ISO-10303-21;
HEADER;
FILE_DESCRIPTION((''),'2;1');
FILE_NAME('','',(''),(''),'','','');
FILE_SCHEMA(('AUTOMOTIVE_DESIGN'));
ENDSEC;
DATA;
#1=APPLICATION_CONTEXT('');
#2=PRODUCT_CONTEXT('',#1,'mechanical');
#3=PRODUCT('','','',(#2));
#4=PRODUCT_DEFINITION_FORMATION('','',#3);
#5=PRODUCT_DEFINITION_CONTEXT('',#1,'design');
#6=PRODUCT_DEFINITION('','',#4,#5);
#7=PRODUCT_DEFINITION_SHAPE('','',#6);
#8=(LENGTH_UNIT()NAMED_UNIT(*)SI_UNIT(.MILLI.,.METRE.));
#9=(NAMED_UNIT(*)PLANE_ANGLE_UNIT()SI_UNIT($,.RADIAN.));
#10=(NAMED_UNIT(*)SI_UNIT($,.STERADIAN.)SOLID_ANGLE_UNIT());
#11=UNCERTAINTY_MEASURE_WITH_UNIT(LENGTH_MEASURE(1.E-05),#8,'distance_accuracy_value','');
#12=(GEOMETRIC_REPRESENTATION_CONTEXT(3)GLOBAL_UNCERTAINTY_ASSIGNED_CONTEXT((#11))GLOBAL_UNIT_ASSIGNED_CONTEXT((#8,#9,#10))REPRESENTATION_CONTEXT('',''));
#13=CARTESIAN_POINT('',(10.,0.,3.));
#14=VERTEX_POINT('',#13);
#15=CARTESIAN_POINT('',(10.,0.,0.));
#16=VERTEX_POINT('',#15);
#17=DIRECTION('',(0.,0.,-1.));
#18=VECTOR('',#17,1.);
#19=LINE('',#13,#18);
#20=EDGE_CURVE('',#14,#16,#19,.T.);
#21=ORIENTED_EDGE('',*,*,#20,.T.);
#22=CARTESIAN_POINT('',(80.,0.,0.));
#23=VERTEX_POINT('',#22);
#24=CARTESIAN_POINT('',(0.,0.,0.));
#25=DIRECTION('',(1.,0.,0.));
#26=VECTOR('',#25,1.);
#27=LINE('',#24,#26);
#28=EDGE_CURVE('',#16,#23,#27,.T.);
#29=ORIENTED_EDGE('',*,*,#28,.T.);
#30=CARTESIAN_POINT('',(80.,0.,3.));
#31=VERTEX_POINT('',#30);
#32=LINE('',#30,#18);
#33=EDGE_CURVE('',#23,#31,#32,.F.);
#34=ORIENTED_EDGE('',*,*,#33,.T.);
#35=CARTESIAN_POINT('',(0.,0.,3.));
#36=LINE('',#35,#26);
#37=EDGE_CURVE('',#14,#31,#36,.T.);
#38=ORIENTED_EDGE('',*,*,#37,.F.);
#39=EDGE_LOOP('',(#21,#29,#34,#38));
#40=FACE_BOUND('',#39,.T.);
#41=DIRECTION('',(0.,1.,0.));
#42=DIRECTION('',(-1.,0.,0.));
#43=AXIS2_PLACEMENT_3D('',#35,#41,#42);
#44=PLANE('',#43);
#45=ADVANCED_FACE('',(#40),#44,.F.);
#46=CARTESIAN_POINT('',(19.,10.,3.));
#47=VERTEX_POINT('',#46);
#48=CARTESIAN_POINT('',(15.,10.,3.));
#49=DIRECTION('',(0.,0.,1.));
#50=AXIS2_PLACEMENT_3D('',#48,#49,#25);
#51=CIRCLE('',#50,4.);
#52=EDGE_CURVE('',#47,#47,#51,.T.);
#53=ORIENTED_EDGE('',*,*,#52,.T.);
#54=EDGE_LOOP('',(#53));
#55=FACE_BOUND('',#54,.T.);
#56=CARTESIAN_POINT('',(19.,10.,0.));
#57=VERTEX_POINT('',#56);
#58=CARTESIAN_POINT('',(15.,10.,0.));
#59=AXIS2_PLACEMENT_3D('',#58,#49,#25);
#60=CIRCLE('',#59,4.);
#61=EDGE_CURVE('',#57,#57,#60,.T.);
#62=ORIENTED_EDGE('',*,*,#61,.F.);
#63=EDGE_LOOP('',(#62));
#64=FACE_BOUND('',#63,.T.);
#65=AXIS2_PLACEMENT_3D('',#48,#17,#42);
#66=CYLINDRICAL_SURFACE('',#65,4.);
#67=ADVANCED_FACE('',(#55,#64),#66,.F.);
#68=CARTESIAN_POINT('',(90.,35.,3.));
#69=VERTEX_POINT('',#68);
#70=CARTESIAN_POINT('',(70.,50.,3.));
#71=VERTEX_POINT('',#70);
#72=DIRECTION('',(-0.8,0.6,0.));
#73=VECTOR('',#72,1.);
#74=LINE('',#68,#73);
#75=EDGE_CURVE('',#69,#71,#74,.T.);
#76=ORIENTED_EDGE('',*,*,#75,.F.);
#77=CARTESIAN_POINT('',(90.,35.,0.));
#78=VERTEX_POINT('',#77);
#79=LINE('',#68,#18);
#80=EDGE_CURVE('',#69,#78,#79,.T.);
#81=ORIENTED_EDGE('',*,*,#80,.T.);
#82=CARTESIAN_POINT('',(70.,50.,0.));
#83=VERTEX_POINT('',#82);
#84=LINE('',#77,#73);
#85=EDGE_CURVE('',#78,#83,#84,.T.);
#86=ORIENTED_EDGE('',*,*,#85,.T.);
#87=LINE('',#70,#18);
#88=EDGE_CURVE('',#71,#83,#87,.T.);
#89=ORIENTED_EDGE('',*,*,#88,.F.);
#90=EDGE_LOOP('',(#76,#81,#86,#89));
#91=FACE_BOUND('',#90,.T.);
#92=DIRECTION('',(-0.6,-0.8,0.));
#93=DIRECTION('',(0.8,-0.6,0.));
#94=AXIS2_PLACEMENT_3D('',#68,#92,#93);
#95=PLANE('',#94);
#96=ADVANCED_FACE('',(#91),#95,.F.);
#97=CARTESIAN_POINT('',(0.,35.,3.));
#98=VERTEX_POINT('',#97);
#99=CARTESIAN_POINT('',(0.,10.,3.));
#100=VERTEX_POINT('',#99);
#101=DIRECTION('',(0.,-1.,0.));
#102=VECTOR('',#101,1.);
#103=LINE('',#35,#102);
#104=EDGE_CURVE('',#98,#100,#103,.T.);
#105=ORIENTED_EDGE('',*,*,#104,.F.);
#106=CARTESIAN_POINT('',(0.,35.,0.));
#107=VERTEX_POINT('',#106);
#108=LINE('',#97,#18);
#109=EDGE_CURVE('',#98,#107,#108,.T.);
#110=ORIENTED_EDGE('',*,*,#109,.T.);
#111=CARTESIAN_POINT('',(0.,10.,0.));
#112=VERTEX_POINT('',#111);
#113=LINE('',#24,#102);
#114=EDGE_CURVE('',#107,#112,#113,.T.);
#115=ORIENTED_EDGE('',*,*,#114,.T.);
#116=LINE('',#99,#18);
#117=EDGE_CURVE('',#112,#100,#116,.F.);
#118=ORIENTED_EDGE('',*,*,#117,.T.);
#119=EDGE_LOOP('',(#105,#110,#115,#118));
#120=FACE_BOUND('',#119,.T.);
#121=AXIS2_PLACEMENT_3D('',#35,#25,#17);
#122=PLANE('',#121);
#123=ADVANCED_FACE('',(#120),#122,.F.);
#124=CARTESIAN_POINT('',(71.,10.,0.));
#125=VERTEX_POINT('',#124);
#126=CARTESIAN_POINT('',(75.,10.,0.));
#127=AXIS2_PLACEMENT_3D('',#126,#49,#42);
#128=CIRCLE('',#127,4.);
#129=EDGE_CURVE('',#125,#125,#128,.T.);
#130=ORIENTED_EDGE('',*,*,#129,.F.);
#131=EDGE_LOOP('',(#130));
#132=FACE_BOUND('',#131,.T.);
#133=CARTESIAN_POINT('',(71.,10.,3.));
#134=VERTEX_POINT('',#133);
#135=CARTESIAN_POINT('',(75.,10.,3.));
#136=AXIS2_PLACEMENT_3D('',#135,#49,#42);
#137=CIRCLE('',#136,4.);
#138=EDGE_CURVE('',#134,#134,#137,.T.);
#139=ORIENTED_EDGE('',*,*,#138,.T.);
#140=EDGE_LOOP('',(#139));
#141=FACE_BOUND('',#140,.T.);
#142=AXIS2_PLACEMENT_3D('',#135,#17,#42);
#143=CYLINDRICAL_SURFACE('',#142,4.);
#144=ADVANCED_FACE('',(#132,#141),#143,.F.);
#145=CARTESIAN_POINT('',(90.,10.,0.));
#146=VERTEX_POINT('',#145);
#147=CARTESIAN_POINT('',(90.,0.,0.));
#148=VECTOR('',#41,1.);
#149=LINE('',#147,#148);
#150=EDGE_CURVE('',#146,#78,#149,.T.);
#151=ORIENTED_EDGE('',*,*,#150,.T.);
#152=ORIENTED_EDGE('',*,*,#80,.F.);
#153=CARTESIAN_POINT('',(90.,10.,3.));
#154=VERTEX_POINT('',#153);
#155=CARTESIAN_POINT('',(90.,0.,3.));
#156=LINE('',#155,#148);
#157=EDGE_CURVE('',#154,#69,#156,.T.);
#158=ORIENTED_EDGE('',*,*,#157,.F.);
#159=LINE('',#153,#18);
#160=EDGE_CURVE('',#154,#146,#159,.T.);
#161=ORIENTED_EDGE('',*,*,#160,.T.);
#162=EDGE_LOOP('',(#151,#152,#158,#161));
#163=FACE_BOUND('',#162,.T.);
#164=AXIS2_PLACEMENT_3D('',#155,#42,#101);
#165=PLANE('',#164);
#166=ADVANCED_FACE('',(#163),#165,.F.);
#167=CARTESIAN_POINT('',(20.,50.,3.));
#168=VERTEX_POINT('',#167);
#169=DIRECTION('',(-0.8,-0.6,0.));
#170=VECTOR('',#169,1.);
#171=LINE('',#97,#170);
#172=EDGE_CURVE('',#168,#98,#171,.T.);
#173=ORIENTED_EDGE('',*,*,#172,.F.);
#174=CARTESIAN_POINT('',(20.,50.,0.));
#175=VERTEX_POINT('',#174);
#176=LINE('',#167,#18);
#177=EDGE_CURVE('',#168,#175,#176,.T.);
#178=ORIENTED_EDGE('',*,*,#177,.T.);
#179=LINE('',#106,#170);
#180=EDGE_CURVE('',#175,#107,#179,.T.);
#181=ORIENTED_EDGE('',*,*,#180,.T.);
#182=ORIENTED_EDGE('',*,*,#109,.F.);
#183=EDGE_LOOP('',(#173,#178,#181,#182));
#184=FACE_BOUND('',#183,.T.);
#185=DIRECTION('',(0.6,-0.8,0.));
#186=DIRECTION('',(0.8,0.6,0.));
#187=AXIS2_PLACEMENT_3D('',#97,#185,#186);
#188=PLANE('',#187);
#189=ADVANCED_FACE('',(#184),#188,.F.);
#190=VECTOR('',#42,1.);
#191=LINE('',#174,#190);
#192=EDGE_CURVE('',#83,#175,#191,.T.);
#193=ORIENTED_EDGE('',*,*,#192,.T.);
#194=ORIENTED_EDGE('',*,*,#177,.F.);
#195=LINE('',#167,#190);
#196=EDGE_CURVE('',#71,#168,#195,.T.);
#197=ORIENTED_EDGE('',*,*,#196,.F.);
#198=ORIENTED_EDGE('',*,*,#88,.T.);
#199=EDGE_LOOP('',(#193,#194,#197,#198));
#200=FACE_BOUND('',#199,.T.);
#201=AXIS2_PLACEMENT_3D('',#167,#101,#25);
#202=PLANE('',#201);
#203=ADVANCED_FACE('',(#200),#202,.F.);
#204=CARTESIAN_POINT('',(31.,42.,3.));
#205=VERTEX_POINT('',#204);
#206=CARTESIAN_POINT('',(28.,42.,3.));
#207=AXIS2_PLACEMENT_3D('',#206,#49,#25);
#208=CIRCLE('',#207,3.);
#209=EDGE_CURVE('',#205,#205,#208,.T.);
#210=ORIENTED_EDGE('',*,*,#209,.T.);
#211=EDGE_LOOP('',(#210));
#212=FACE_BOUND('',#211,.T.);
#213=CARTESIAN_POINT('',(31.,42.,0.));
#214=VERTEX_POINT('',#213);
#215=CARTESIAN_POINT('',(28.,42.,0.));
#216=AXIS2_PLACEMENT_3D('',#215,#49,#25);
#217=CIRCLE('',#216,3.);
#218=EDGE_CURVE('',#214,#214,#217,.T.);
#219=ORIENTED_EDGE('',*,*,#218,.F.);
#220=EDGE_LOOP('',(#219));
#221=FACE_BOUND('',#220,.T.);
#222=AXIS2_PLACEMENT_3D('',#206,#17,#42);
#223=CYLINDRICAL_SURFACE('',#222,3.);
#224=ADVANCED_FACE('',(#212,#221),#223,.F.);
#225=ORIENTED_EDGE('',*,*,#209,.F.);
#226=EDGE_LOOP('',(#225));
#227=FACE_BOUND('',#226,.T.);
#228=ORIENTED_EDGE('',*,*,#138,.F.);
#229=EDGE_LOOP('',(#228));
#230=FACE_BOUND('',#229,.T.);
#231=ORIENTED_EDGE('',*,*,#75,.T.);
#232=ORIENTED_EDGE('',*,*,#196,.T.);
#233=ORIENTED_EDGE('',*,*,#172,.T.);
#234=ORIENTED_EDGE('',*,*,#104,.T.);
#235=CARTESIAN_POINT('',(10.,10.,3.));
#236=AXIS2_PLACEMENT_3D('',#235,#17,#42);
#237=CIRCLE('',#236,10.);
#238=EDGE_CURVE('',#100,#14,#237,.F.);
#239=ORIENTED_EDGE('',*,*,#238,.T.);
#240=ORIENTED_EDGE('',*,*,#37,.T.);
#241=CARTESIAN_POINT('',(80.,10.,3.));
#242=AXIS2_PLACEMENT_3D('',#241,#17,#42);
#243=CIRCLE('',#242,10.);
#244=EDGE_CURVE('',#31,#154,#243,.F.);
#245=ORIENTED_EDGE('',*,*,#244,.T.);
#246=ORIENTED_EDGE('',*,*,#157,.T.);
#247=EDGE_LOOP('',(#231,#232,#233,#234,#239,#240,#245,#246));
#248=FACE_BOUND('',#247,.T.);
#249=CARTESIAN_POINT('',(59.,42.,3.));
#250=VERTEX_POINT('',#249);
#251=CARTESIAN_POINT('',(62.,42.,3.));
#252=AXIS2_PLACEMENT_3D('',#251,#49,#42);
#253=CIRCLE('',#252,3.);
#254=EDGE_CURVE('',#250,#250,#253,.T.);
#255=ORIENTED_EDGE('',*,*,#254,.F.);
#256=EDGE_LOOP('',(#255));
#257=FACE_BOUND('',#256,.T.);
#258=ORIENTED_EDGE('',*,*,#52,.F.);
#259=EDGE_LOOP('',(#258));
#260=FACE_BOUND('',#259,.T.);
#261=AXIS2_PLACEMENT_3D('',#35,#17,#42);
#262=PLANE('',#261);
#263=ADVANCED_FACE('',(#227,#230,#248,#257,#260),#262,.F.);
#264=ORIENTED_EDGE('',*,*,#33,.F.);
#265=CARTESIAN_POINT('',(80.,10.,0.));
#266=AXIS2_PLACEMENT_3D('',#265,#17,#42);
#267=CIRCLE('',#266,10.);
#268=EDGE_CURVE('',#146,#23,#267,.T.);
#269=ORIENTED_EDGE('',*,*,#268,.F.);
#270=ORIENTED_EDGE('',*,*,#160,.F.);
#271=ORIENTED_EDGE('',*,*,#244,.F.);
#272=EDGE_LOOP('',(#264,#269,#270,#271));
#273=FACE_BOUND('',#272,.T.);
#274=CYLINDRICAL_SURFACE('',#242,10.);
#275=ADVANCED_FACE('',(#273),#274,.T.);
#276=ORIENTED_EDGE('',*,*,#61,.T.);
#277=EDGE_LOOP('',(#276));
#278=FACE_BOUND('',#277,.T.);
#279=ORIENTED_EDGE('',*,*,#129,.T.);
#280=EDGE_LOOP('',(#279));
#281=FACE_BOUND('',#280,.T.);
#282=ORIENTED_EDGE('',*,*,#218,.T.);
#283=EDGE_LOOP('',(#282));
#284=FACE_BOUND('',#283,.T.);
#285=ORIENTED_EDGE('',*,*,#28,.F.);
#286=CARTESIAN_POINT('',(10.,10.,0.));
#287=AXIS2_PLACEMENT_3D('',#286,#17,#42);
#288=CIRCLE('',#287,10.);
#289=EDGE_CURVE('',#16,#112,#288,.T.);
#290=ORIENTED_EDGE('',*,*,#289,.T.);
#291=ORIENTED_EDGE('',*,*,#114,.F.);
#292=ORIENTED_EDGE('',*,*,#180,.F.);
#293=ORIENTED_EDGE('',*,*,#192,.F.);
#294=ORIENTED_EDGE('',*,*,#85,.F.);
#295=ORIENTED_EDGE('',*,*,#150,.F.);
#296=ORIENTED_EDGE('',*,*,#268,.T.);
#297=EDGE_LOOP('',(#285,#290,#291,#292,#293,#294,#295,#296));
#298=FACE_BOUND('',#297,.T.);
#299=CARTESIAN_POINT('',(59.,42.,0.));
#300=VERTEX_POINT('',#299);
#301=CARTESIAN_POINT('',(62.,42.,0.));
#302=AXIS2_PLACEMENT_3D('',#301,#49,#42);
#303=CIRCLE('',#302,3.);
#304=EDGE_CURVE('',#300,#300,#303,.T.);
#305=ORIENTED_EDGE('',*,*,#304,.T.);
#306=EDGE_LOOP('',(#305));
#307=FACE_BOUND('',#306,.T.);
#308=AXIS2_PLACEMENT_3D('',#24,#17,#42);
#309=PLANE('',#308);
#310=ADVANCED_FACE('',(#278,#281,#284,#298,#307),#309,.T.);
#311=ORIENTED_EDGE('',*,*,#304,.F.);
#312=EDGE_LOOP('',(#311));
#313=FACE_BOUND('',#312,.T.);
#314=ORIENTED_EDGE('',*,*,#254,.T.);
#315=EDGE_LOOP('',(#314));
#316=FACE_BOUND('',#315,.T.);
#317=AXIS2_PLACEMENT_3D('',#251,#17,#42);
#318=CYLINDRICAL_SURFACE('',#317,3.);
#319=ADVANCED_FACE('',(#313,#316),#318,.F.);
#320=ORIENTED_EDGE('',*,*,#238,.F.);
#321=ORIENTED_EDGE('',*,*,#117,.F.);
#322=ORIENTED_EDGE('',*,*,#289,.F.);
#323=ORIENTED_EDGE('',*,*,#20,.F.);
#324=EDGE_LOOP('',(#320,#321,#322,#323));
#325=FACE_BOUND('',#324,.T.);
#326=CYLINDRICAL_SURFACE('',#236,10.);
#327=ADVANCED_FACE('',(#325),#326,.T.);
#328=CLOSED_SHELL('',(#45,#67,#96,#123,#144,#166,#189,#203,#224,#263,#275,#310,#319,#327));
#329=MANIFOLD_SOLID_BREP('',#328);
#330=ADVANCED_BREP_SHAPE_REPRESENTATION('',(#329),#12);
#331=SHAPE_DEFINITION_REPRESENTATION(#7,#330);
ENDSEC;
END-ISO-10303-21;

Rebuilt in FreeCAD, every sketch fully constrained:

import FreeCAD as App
import Part
import Sketcher

V = App.Vector


def edges_at(feature, points):
    """Names of the edges that pass closest to the given points."""
    edges = feature.Shape.Edges
    near = lambda p: min(range(len(edges)), key=lambda i: edges[i].distToShape(Part.Vertex(*p))[0])
    return sorted({f"Edge{near(p) + 1}" for p in points})

doc = App.newDocument("Part")
params = doc.addObject("Spreadsheet::Sheet", "Params")
for row, (alias, value) in enumerate([
    ("sketch1_diameter", "8 mm"),
    ("sketch1_diameter2", "6 mm"),
    ("sketch1_width", "90 mm"),
    ("sketch1_width2", "50 mm"),
    ("sketch1_height", "35 mm"),
    ("pad1_length", "3 mm"),
    ("fillet_radius", "10 mm"),
], start=1):
    params.set(f"A{row}", alias)
    params.set(f"B{row}", "=" + value)
    params.setAlias(f"B{row}", alias)

body = doc.addObject("PartDesign::Body", "Body")

# Sketch on XY plane
sketch1 = body.newObject("Sketcher::SketchObject", "Sketch")
sketch1.AttachmentSupport = (doc.getObject("XY_Plane"), [""])
sketch1.MapMode = "FlatFace"
sketch1.addGeometry([
    Part.LineSegment(V(20, 50, 0), V(0, 35, 0)),  # 0
    Part.LineSegment(V(0, 35, 0), V(0, 0, 0)),  # 1
    Part.LineSegment(V(0, 0, 0), V(90, 0, 0)),  # 2
    Part.LineSegment(V(90, 0, 0), V(90, 35, 0)),  # 3
    Part.LineSegment(V(90, 35, 0), V(70, 50, 0)),  # 4
    Part.LineSegment(V(70, 50, 0), V(20, 50, 0)),  # 5
    Part.Circle(V(75, 10, 0), V(0, 0, 1), 4),  # 6
    Part.Circle(V(15, 10, 0), V(0, 0, 1), 4),  # 7
    Part.Circle(V(62, 42, 0), V(0, 0, 1), 3),  # 8
    Part.Circle(V(28, 42, 0), V(0, 0, 1), 3),  # 9
], False)
sketch1.addConstraint([
    Sketcher.Constraint("Coincident", 0, 2, 1, 1),
    Sketcher.Constraint("Coincident", 1, 2, 2, 1),
    Sketcher.Constraint("Coincident", 2, 2, 3, 1),
    Sketcher.Constraint("Coincident", 3, 2, 4, 1),
    Sketcher.Constraint("Coincident", 4, 2, 5, 1),
    Sketcher.Constraint("Coincident", 5, 2, 0, 1),
    Sketcher.Constraint("Vertical", 1),
    Sketcher.Constraint("Horizontal", 2),
    Sketcher.Constraint("Vertical", 3),
    Sketcher.Constraint("Horizontal", 5),
    Sketcher.Constraint("Coincident", 1, 2, -1, 1),
    Sketcher.Constraint("Equal", 6, 7),
    Sketcher.Constraint("Equal", 8, 9),
    Sketcher.Constraint("Horizontal", 6, 3, 7, 3),
    Sketcher.Constraint("Horizontal", 8, 3, 9, 3),
    Sketcher.Constraint("Horizontal", 0, 2, 3, 2),
    Sketcher.Constraint("Equal", 0, 4),
    Sketcher.Constraint("Diameter", 6, 8.0),
    Sketcher.Constraint("Diameter", 8, 6.0),
    Sketcher.Constraint("DistanceX", 2, 1, 2, 2, 90.0),
    Sketcher.Constraint("DistanceX", 5, 2, 5, 1, 50.0),
    Sketcher.Constraint("DistanceY", 1, 2, 1, 1, 35.0),
    Sketcher.Constraint("Distance", 0, 25.0),
    Sketcher.Constraint("DistanceX", -1, 1, 6, 3, 75.0),
    Sketcher.Constraint("DistanceY", -1, 1, 6, 3, 10.0),
    Sketcher.Constraint("DistanceX", -1, 1, 7, 3, 15.0),
    Sketcher.Constraint("DistanceX", -1, 1, 8, 3, 62.0),
    Sketcher.Constraint("DistanceY", -1, 1, 8, 3, 42.0),
    Sketcher.Constraint("DistanceX", -1, 1, 9, 3, 28.0),
])
sketch1.setExpression("Constraints[17]", "Params.sketch1_diameter")
sketch1.setExpression("Constraints[18]", "Params.sketch1_diameter2")
sketch1.setExpression("Constraints[19]", "Params.sketch1_width")
sketch1.setExpression("Constraints[20]", "Params.sketch1_width2")
sketch1.setExpression("Constraints[21]", "Params.sketch1_height")
pad1 = body.newObject("PartDesign::Pad", "Pad")
pad1.Profile = sketch1
pad1.setExpression("Length", "Params.pad1_length")
doc.recompute()

fillet = body.newObject("PartDesign::Fillet", "Fillet")
fillet.Base = (pad1, edges_at(pad1, [(90, 0, 1.5), (0, 0, 1.5)]))
fillet.setExpression("Radius", "Params.fillet_radius")

doc.recompute()
